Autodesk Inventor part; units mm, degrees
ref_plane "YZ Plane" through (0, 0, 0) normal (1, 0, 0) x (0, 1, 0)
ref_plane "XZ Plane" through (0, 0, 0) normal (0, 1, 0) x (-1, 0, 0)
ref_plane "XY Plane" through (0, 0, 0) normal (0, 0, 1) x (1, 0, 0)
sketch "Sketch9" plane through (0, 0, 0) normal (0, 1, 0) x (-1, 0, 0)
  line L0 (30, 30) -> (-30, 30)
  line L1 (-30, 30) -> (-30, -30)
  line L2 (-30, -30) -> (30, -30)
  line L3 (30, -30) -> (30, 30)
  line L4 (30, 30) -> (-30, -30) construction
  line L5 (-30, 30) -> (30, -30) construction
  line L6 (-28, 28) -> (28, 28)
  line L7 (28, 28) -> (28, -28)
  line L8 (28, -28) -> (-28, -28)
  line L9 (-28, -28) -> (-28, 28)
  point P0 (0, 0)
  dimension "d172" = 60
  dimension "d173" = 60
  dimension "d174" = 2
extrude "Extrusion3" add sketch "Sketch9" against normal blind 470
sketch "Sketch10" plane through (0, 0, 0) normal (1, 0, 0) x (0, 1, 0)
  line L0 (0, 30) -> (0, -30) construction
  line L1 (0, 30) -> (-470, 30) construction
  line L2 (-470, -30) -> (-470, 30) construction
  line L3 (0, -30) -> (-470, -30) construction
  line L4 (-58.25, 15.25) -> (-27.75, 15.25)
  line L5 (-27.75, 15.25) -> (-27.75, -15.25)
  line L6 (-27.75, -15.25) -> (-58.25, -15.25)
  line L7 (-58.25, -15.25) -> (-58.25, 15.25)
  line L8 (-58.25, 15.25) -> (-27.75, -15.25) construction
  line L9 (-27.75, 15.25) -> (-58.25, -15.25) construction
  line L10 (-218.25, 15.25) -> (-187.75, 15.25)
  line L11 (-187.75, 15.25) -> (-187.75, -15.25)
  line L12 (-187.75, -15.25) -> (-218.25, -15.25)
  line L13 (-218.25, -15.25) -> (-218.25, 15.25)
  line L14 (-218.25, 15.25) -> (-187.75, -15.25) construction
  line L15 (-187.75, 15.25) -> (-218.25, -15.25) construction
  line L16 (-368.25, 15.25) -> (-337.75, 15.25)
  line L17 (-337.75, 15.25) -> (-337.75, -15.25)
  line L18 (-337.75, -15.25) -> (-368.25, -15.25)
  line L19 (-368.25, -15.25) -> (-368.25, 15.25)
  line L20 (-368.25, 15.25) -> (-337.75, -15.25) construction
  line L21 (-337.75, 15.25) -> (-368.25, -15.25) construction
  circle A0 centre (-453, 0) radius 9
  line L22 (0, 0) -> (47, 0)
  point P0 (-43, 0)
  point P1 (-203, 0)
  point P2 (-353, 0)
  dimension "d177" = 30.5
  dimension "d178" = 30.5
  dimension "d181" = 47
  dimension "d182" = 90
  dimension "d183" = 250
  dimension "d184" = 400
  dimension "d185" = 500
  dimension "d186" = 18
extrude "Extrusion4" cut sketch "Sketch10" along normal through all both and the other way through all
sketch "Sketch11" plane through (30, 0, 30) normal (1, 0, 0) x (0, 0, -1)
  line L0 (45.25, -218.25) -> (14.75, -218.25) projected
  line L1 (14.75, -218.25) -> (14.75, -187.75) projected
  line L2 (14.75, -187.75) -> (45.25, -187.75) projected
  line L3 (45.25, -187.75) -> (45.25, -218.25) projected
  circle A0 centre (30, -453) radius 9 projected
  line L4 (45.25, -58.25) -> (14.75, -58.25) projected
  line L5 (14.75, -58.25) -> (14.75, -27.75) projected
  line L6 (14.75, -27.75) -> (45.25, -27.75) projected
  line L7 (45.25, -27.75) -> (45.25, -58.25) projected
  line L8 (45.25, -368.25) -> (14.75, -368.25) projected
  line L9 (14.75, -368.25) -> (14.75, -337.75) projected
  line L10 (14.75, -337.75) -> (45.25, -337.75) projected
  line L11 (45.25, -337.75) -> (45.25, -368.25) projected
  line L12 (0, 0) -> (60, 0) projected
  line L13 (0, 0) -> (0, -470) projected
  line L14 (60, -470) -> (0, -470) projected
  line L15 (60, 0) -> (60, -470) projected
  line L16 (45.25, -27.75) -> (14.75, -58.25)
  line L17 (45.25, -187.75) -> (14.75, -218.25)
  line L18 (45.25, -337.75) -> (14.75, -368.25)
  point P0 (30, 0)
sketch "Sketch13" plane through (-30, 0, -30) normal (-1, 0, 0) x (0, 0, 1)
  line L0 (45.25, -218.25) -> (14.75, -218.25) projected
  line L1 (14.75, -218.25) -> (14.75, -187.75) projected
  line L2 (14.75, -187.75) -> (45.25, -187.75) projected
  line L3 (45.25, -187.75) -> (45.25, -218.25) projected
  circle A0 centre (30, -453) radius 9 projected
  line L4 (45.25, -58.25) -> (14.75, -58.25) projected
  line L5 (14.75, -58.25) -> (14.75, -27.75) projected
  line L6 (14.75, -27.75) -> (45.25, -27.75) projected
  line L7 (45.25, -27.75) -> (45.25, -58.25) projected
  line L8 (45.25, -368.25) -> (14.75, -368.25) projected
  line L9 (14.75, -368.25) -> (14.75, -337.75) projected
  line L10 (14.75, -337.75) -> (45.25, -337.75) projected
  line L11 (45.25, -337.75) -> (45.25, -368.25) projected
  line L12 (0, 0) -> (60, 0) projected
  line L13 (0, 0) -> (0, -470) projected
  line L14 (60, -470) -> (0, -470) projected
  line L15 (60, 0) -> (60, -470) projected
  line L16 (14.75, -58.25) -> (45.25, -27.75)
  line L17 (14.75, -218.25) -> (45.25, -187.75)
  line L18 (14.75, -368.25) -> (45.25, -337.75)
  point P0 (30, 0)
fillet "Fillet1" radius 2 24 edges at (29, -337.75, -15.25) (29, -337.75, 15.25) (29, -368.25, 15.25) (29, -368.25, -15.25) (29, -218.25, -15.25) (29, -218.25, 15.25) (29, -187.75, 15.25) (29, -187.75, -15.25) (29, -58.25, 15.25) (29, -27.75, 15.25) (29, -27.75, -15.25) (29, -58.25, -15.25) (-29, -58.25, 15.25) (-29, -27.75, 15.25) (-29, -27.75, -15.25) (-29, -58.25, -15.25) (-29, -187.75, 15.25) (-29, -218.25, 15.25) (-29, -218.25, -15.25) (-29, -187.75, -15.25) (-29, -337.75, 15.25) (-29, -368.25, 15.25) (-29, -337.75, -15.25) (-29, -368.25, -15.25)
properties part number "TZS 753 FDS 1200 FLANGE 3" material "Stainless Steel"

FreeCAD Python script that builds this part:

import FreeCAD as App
import Part
import Sketcher
from FreeCAD import Vector
Q = App.Units.Quantity


def edges_at(feature, points):
    """Names of the edges that pass closest to the given points."""
    edges = feature.Shape.Edges
    near = lambda p: min(range(len(edges)), key=lambda i: edges[i].distToShape(Part.Vertex(*p))[0])
    return sorted({f"Edge{near(p) + 1}" for p in points})


def add_polygon(sketch, points):
    """Adds a closed chain of lines whose ends are joined by coincident constraints."""
    first, n = sketch.GeometryCount, len(points)
    for a, b in zip(points, points[1:] + points[:1]):
        sketch.addGeometry(Part.LineSegment(App.Vector(*a, 0), App.Vector(*b, 0)), False)
    for i in range(n):
        sketch.addConstraint(Sketcher.Constraint("Coincident", first + i, 2, first + (i + 1) % n, 1))

doc = App.newDocument("Part")
body = doc.addObject("PartDesign::Body", "Body")

sketch1 = body.newObject("Sketcher::SketchObject", "Sketch")
sketch1.AttachmentSupport = (doc.getObject("XZ_Plane"), [""])
sketch1.MapMode = "FlatFace"
add_polygon(sketch1, [(-30, -30), (-30, 30), (30, 30), (30, -30)])
add_polygon(sketch1, [(28, -28), (28, 28), (-28, 28), (-28, -28)])
sketch1.addConstraint([
    Sketcher.Constraint("Vertical", 0),
    Sketcher.Constraint("Horizontal", 1),
    Sketcher.Constraint("Vertical", 2),
    Sketcher.Constraint("Horizontal", 3),
    Sketcher.Constraint("Vertical", 4),
    Sketcher.Constraint("Horizontal", 5),
    Sketcher.Constraint("Vertical", 6),
    Sketcher.Constraint("Horizontal", 7),
    Sketcher.Constraint("Symmetric", 0, 2, 2, 2, -1, 1),
    Sketcher.Constraint("Symmetric", 4, 2, 6, 2, -1, 1),
    Sketcher.Constraint("Equal", 3, 0),
    Sketcher.Constraint("Equal", 7, 4),
    Sketcher.Constraint("DistanceX", 1, 1, 1, 2, Q("60 mm")),
    Sketcher.Constraint("DistanceX", 4, 2, 1, 2, Q("2 mm")),
])
pad1 = body.newObject("PartDesign::Pad", "Pad")
pad1.Profile = sketch1
pad1.Length = 470

sketch2 = body.newObject("Sketcher::SketchObject", "Sketch001")
sketch2.AttachmentSupport = (doc.getObject("YZ_Plane"), [""])
sketch2.MapMode = "FlatFace"
add_polygon(sketch2, [(-28, 15), (-58, 15), (-58, -15), (-28, -15)])
add_polygon(sketch2, [(-188, 15), (-218, 15), (-218, -15), (-188, -15)])
add_polygon(sketch2, [(-338, 15), (-368, 15), (-368, -15), (-338, -15)])
sketch2.addGeometry(Part.Circle(Vector(-453, 0, 0), Vector(0, 0, 1), 9), False)
sketch2.addConstraint([
    Sketcher.Constraint("Horizontal", 0),
    Sketcher.Constraint("Vertical", 1),
    Sketcher.Constraint("Horizontal", 2),
    Sketcher.Constraint("Vertical", 3),
    Sketcher.Constraint("Horizontal", 4),
    Sketcher.Constraint("Vertical", 5),
    Sketcher.Constraint("Horizontal", 6),
    Sketcher.Constraint("Vertical", 7),
    Sketcher.Constraint("Horizontal", 8),
    Sketcher.Constraint("Vertical", 9),
    Sketcher.Constraint("Horizontal", 10),
    Sketcher.Constraint("Vertical", 11),
    Sketcher.Constraint("PointOnObject", 12, 3, -1),
    Sketcher.Constraint("Horizontal", 3, 2, 4, 2),
    Sketcher.Constraint("Horizontal", 2, 2, 5, 2),
    Sketcher.Constraint("Horizontal", 7, 2, 8, 2),
    Sketcher.Constraint("Horizontal", 6, 2, 9, 2),
    Sketcher.Constraint("Equal", 2, 4),
    Sketcher.Constraint("Equal", 6, 8),
    Sketcher.Constraint("Equal", 10, 1),
    Sketcher.Constraint("Diameter", 12, Q("18 mm")),
    Sketcher.Constraint("DistanceX", 0, 2, 0, 1, Q("30.5 mm")),
    Sketcher.Constraint("DistanceX", 12, 3, -1, 1, Q("453 mm")),
    Sketcher.Constraint("DistanceX", 4, 2, 0, 2, Q("160 mm")),
    Sketcher.Constraint("DistanceX", 8, 2, 4, 2, Q("150 mm")),
    Sketcher.Constraint("DistanceX", 0, 2, -1, 1, Q("58.25 mm")),
    Sketcher.Constraint("DistanceY", -1, 1, 0, 2, Q("15.25 mm")),
])
pocket1 = body.newObject("PartDesign::Pocket", "Pocket")
pocket1.Profile = sketch2
pocket1.Type = "ThroughAll"
pocket1.Midplane = True
doc.recompute()

fillet = body.newObject("PartDesign::Fillet", "Fillet")
fillet.Base = (pocket1, edges_at(pocket1, [
    (29, -337.75, -15.25),
    (29, -337.75, 15.25),
    (29, -368.25, 15.25),
    (29, -368.25, -15.25),
    (29, -218.25, -15.25),
    (29, -218.25, 15.25),
    (29, -187.75, 15.25),
    (29, -187.75, -15.25),
    (29, -58.25, 15.25),
    (29, -27.75, 15.25),
    (29, -27.75, -15.25),
    (29, -58.25, -15.25),
    (-29, -58.25, 15.25),
    (-29, -27.75, 15.25),
    (-29, -27.75, -15.25),
    (-29, -58.25, -15.25),
    (-29, -187.75, 15.25),
    (-29, -218.25, 15.25),
    (-29, -218.25, -15.25),
    (-29, -187.75, -15.25),
    (-29, -337.75, 15.25),
    (-29, -368.25, 15.25),
    (-29, -337.75, -15.25),
    (-29, -368.25, -15.25),
]))
fillet.Radius = 2

doc.recompute()
